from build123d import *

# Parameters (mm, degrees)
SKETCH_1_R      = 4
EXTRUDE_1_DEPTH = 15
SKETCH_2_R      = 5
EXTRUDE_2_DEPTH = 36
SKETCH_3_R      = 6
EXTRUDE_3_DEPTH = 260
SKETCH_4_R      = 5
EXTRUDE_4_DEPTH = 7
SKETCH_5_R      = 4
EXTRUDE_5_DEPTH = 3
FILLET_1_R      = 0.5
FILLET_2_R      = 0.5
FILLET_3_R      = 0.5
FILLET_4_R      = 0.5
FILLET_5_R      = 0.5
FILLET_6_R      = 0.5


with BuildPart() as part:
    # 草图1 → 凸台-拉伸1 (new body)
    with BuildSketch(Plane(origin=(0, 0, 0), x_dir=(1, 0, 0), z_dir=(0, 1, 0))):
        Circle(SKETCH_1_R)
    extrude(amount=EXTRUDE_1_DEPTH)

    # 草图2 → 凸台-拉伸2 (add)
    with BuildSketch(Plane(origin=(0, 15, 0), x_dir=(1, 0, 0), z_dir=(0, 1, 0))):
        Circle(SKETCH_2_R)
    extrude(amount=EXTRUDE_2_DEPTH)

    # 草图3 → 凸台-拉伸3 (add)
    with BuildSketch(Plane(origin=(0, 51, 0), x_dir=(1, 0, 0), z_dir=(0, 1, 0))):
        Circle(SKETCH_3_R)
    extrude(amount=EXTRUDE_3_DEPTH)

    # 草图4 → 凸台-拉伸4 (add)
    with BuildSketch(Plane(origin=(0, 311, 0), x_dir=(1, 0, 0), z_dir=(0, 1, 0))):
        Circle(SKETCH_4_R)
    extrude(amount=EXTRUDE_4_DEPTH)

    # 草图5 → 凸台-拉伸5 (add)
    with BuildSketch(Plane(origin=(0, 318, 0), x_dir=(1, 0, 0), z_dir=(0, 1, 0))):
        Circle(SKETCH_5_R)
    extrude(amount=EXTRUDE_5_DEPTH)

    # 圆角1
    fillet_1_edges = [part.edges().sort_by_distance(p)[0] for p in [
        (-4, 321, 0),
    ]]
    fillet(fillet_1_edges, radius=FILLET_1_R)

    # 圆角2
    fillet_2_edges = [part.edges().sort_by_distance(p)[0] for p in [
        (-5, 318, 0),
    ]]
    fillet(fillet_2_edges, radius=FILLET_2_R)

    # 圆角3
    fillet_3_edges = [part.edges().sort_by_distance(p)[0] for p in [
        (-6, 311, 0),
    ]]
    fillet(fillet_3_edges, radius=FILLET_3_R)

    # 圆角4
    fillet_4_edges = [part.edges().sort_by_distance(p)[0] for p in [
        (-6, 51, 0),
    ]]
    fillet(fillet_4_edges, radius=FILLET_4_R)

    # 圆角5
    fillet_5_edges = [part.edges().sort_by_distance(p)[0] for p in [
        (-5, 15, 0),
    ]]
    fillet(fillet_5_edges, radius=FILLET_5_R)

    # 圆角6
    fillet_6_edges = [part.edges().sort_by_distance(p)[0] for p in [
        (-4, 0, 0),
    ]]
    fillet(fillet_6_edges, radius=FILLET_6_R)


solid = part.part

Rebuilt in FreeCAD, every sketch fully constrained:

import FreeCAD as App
import Part
import Sketcher
from FreeCAD import Vector


def edges_at(feature, points):
    """Names of the edges that pass closest to the given points."""
    edges = feature.Shape.Edges
    near = lambda p: min(range(len(edges)), key=lambda i: edges[i].distToShape(Part.Vertex(*p))[0])
    return sorted({f"Edge{near(p) + 1}" for p in points})

doc = App.newDocument("Part")
body = doc.addObject("PartDesign::Body", "Body")

# Sketch on XZ plane
sketch1 = body.newObject("Sketcher::SketchObject", "Sketch")
sketch1.AttachmentSupport = (doc.getObject("XZ_Plane"), [""])
sketch1.MapMode = "FlatFace"
sketch1.addGeometry(Part.Circle(Vector(0, 0, 0), Vector(0, 0, 1), 4), False)
sketch1.addConstraint(Sketcher.Constraint("Coincident", 0, 3, -1, 1))
sketch1.addConstraint(Sketcher.Constraint("Diameter", 0, 8.0))
pad1 = body.newObject("PartDesign::Pad", "Pad")
pad1.Profile = sketch1
pad1.Length = 15
pad1.Reversed = True

# Sketch on XZ plane
sketch2 = body.newObject("Sketcher::SketchObject", "Sketch001")
sketch2.AttachmentSupport = (doc.getObject("XZ_Plane"), [""])
sketch2.MapMode = "FlatFace"
sketch2.AttachmentOffset = App.Placement(Vector(0, 0, -15), App.Rotation())
sketch2.addGeometry(Part.Circle(Vector(0, 0, 0), Vector(0, 0, 1), 5), False)
sketch2.addConstraint(Sketcher.Constraint("Coincident", 0, 3, -1, 1))
sketch2.addConstraint(Sketcher.Constraint("Diameter", 0, 10.0))
pad2 = body.newObject("PartDesign::Pad", "Pad001")
pad2.Profile = sketch2
pad2.Length = 36
pad2.Reversed = True

# Sketch on XZ plane
sketch3 = body.newObject("Sketcher::SketchObject", "Sketch002")
sketch3.AttachmentSupport = (doc.getObject("XZ_Plane"), [""])
sketch3.MapMode = "FlatFace"
sketch3.AttachmentOffset = App.Placement(Vector(0, 0, -51), App.Rotation())
sketch3.addGeometry(Part.Circle(Vector(0, 0, 0), Vector(0, 0, 1), 6), False)
sketch3.addConstraint(Sketcher.Constraint("Coincident", 0, 3, -1, 1))
sketch3.addConstraint(Sketcher.Constraint("Diameter", 0, 12.0))
pad3 = body.newObject("PartDesign::Pad", "Pad002")
pad3.Profile = sketch3
pad3.Length = 260
pad3.Reversed = True

# Sketch on XZ plane
sketch4 = body.newObject("Sketcher::SketchObject", "Sketch003")
sketch4.AttachmentSupport = (doc.getObject("XZ_Plane"), [""])
sketch4.MapMode = "FlatFace"
sketch4.AttachmentOffset = App.Placement(Vector(0, 0, -311), App.Rotation())
sketch4.addGeometry(Part.Circle(Vector(0, 0, 0), Vector(0, 0, 1), 5), False)
sketch4.addConstraint(Sketcher.Constraint("Coincident", 0, 3, -1, 1))
sketch4.addConstraint(Sketcher.Constraint("Diameter", 0, 10.0))
pad4 = body.newObject("PartDesign::Pad", "Pad003")
pad4.Profile = sketch4
pad4.Length = 7
pad4.Reversed = True

# Sketch on XZ plane
sketch5 = body.newObject("Sketcher::SketchObject", "Sketch004")
sketch5.AttachmentSupport = (doc.getObject("XZ_Plane"), [""])
sketch5.MapMode = "FlatFace"
sketch5.AttachmentOffset = App.Placement(Vector(0, 0, -318), App.Rotation())
sketch5.addGeometry(Part.Circle(Vector(0, 0, 0), Vector(0, 0, 1), 4), False)
sketch5.addConstraint(Sketcher.Constraint("Coincident", 0, 3, -1, 1))
sketch5.addConstraint(Sketcher.Constraint("Diameter", 0, 8.0))
pad5 = body.newObject("PartDesign::Pad", "Pad004")
pad5.Profile = sketch5
pad5.Length = 3
pad5.Reversed = True
doc.recompute()

fillet = body.newObject("PartDesign::Fillet", "Fillet")
fillet.Base = (pad5, edges_at(pad5, [(-4, 321, 0)]))
fillet.Radius = 0.5
doc.recompute()

fillet2 = body.newObject("PartDesign::Fillet", "Fillet001")
fillet2.Base = (fillet, edges_at(fillet, [(-5, 318, 0)]))
fillet2.Radius = 0.5
doc.recompute()

fillet3 = body.newObject("PartDesign::Fillet", "Fillet002")
fillet3.Base = (fillet2, edges_at(fillet2, [(-6, 311, 0)]))
fillet3.Radius = 0.5
doc.recompute()

fillet4 = body.newObject("PartDesign::Fillet", "Fillet003")
fillet4.Base = (fillet3, edges_at(fillet3, [(-6, 51, 0)]))
fillet4.Radius = 0.5
doc.recompute()

fillet5 = body.newObject("PartDesign::Fillet", "Fillet004")
fillet5.Base = (fillet4, edges_at(fillet4, [(-5, 15, 0)]))
fillet5.Radius = 0.5
doc.recompute()

fillet6 = body.newObject("PartDesign::Fillet", "Fillet005")
fillet6.Base = (fillet5, edges_at(fillet5, [(-4, 0, 0)]))
fillet6.Radius = 0.5

doc.recompute()
